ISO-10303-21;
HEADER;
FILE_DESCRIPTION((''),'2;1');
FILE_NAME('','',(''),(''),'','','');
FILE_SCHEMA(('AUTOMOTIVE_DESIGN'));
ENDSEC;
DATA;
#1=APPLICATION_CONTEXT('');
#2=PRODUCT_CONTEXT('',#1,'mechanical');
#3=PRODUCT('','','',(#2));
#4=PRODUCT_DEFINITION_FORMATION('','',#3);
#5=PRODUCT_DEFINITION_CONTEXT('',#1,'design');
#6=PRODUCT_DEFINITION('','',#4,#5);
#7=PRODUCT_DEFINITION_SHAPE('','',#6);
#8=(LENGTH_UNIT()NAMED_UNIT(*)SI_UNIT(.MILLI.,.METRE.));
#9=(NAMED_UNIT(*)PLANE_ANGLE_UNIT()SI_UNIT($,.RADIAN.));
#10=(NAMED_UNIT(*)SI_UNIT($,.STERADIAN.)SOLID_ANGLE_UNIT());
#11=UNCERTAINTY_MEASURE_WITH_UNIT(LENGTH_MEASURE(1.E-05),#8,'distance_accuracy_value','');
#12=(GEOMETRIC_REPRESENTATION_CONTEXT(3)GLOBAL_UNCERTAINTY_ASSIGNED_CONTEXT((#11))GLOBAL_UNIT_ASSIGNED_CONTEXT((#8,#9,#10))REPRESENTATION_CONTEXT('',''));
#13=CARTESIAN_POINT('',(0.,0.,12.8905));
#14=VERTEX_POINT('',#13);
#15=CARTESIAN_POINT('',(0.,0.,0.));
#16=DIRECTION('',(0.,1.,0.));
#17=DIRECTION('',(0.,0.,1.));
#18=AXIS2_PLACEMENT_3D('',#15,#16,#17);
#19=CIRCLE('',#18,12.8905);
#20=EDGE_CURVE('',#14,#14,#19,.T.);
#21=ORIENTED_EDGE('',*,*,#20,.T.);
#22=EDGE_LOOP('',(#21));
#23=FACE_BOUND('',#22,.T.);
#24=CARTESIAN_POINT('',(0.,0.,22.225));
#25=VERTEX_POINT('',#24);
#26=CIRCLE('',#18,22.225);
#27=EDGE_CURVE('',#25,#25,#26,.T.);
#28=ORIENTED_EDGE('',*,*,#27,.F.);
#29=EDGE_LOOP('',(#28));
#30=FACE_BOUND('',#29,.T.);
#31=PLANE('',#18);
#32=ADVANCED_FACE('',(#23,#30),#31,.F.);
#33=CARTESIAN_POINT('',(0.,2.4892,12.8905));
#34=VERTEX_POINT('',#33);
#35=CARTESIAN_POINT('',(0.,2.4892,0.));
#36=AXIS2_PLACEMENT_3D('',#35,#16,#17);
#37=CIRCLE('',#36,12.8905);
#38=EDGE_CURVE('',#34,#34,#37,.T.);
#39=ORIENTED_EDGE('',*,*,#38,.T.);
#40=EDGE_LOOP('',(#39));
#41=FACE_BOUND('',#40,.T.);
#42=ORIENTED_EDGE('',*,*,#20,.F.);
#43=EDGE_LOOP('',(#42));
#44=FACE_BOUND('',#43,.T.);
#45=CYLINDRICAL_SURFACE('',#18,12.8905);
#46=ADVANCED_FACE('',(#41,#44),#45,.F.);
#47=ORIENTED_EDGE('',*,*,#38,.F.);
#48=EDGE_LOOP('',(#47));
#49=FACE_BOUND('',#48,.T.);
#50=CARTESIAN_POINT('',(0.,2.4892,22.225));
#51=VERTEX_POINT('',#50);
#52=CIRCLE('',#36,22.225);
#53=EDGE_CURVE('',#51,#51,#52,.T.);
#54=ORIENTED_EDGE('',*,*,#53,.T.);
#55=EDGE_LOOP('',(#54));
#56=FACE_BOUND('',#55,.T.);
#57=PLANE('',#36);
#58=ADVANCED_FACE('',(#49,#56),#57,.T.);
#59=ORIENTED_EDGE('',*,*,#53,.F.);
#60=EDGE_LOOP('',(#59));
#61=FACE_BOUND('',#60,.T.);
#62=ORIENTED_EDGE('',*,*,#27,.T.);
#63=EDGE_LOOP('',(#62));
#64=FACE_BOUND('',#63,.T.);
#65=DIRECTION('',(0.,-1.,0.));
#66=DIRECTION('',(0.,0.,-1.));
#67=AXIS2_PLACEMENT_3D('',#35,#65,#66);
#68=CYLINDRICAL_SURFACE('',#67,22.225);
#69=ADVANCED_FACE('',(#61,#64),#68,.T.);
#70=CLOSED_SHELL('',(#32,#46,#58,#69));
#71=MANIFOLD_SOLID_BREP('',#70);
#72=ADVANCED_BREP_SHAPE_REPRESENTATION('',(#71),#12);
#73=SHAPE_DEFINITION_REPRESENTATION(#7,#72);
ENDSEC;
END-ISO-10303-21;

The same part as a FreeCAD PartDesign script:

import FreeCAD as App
import Part
import Sketcher

V = App.Vector
Q = App.Units.Quantity

doc = App.newDocument("Part")
params = doc.addObject("Spreadsheet::Sheet", "Params")
for row, (alias, value) in enumerate([
    ("sketch1_diameter", "1.75 in"),
    ("pad1_length", "0.098 in"),
    ("sketch2_diameter", "1.015 in"),
], start=1):
    params.set(f"A{row}", alias)
    params.set(f"B{row}", "=" + value)
    params.setAlias(f"B{row}", alias)

body = doc.addObject("PartDesign::Body", "Body")

sketch1 = body.newObject("Sketcher::SketchObject", "Sketch")
sketch1.AttachmentSupport = (doc.getObject("XZ_Plane"), [""])
sketch1.MapMode = "FlatFace"
sketch1.addGeometry(Part.Circle(V(0, 0, 0), V(0, 0, 1), 22.225), False)
sketch1.addConstraint([
    Sketcher.Constraint("Coincident", 0, 3, -1, 1),
    Sketcher.Constraint("Diameter", 0, Q("1.75 in")),
])
sketch1.setExpression("Constraints[1]", "Params.sketch1_diameter")
pad1 = body.newObject("PartDesign::Pad", "Pad")
pad1.Profile = sketch1
pad1.setExpression("Length", "Params.pad1_length")
pad1.Reversed = True

sketch2 = body.newObject("Sketcher::SketchObject", "Sketch001")
sketch2.AttachmentSupport = (doc.getObject("XZ_Plane"), [""])
sketch2.MapMode = "FlatFace"
sketch2.AttachmentOffset = App.Placement(V(0, 0, -0.098 * 25.4), App.Rotation())
sketch2.addGeometry(Part.Circle(V(0, 0, 0), V(0, 0, 1), 12.8905), False)
sketch2.addConstraint([
    Sketcher.Constraint("Coincident", 0, 3, -1, 1),
    Sketcher.Constraint("Diameter", 0, Q("1.015 in")),
])
sketch2.setExpression("Constraints[1]", "Params.sketch2_diameter")
pocket1 = body.newObject("PartDesign::Pocket", "Pocket")
pocket1.Profile = sketch2
pocket1.Type = "ThroughAll"
pocket1.Reversed = True

doc.recompute()
